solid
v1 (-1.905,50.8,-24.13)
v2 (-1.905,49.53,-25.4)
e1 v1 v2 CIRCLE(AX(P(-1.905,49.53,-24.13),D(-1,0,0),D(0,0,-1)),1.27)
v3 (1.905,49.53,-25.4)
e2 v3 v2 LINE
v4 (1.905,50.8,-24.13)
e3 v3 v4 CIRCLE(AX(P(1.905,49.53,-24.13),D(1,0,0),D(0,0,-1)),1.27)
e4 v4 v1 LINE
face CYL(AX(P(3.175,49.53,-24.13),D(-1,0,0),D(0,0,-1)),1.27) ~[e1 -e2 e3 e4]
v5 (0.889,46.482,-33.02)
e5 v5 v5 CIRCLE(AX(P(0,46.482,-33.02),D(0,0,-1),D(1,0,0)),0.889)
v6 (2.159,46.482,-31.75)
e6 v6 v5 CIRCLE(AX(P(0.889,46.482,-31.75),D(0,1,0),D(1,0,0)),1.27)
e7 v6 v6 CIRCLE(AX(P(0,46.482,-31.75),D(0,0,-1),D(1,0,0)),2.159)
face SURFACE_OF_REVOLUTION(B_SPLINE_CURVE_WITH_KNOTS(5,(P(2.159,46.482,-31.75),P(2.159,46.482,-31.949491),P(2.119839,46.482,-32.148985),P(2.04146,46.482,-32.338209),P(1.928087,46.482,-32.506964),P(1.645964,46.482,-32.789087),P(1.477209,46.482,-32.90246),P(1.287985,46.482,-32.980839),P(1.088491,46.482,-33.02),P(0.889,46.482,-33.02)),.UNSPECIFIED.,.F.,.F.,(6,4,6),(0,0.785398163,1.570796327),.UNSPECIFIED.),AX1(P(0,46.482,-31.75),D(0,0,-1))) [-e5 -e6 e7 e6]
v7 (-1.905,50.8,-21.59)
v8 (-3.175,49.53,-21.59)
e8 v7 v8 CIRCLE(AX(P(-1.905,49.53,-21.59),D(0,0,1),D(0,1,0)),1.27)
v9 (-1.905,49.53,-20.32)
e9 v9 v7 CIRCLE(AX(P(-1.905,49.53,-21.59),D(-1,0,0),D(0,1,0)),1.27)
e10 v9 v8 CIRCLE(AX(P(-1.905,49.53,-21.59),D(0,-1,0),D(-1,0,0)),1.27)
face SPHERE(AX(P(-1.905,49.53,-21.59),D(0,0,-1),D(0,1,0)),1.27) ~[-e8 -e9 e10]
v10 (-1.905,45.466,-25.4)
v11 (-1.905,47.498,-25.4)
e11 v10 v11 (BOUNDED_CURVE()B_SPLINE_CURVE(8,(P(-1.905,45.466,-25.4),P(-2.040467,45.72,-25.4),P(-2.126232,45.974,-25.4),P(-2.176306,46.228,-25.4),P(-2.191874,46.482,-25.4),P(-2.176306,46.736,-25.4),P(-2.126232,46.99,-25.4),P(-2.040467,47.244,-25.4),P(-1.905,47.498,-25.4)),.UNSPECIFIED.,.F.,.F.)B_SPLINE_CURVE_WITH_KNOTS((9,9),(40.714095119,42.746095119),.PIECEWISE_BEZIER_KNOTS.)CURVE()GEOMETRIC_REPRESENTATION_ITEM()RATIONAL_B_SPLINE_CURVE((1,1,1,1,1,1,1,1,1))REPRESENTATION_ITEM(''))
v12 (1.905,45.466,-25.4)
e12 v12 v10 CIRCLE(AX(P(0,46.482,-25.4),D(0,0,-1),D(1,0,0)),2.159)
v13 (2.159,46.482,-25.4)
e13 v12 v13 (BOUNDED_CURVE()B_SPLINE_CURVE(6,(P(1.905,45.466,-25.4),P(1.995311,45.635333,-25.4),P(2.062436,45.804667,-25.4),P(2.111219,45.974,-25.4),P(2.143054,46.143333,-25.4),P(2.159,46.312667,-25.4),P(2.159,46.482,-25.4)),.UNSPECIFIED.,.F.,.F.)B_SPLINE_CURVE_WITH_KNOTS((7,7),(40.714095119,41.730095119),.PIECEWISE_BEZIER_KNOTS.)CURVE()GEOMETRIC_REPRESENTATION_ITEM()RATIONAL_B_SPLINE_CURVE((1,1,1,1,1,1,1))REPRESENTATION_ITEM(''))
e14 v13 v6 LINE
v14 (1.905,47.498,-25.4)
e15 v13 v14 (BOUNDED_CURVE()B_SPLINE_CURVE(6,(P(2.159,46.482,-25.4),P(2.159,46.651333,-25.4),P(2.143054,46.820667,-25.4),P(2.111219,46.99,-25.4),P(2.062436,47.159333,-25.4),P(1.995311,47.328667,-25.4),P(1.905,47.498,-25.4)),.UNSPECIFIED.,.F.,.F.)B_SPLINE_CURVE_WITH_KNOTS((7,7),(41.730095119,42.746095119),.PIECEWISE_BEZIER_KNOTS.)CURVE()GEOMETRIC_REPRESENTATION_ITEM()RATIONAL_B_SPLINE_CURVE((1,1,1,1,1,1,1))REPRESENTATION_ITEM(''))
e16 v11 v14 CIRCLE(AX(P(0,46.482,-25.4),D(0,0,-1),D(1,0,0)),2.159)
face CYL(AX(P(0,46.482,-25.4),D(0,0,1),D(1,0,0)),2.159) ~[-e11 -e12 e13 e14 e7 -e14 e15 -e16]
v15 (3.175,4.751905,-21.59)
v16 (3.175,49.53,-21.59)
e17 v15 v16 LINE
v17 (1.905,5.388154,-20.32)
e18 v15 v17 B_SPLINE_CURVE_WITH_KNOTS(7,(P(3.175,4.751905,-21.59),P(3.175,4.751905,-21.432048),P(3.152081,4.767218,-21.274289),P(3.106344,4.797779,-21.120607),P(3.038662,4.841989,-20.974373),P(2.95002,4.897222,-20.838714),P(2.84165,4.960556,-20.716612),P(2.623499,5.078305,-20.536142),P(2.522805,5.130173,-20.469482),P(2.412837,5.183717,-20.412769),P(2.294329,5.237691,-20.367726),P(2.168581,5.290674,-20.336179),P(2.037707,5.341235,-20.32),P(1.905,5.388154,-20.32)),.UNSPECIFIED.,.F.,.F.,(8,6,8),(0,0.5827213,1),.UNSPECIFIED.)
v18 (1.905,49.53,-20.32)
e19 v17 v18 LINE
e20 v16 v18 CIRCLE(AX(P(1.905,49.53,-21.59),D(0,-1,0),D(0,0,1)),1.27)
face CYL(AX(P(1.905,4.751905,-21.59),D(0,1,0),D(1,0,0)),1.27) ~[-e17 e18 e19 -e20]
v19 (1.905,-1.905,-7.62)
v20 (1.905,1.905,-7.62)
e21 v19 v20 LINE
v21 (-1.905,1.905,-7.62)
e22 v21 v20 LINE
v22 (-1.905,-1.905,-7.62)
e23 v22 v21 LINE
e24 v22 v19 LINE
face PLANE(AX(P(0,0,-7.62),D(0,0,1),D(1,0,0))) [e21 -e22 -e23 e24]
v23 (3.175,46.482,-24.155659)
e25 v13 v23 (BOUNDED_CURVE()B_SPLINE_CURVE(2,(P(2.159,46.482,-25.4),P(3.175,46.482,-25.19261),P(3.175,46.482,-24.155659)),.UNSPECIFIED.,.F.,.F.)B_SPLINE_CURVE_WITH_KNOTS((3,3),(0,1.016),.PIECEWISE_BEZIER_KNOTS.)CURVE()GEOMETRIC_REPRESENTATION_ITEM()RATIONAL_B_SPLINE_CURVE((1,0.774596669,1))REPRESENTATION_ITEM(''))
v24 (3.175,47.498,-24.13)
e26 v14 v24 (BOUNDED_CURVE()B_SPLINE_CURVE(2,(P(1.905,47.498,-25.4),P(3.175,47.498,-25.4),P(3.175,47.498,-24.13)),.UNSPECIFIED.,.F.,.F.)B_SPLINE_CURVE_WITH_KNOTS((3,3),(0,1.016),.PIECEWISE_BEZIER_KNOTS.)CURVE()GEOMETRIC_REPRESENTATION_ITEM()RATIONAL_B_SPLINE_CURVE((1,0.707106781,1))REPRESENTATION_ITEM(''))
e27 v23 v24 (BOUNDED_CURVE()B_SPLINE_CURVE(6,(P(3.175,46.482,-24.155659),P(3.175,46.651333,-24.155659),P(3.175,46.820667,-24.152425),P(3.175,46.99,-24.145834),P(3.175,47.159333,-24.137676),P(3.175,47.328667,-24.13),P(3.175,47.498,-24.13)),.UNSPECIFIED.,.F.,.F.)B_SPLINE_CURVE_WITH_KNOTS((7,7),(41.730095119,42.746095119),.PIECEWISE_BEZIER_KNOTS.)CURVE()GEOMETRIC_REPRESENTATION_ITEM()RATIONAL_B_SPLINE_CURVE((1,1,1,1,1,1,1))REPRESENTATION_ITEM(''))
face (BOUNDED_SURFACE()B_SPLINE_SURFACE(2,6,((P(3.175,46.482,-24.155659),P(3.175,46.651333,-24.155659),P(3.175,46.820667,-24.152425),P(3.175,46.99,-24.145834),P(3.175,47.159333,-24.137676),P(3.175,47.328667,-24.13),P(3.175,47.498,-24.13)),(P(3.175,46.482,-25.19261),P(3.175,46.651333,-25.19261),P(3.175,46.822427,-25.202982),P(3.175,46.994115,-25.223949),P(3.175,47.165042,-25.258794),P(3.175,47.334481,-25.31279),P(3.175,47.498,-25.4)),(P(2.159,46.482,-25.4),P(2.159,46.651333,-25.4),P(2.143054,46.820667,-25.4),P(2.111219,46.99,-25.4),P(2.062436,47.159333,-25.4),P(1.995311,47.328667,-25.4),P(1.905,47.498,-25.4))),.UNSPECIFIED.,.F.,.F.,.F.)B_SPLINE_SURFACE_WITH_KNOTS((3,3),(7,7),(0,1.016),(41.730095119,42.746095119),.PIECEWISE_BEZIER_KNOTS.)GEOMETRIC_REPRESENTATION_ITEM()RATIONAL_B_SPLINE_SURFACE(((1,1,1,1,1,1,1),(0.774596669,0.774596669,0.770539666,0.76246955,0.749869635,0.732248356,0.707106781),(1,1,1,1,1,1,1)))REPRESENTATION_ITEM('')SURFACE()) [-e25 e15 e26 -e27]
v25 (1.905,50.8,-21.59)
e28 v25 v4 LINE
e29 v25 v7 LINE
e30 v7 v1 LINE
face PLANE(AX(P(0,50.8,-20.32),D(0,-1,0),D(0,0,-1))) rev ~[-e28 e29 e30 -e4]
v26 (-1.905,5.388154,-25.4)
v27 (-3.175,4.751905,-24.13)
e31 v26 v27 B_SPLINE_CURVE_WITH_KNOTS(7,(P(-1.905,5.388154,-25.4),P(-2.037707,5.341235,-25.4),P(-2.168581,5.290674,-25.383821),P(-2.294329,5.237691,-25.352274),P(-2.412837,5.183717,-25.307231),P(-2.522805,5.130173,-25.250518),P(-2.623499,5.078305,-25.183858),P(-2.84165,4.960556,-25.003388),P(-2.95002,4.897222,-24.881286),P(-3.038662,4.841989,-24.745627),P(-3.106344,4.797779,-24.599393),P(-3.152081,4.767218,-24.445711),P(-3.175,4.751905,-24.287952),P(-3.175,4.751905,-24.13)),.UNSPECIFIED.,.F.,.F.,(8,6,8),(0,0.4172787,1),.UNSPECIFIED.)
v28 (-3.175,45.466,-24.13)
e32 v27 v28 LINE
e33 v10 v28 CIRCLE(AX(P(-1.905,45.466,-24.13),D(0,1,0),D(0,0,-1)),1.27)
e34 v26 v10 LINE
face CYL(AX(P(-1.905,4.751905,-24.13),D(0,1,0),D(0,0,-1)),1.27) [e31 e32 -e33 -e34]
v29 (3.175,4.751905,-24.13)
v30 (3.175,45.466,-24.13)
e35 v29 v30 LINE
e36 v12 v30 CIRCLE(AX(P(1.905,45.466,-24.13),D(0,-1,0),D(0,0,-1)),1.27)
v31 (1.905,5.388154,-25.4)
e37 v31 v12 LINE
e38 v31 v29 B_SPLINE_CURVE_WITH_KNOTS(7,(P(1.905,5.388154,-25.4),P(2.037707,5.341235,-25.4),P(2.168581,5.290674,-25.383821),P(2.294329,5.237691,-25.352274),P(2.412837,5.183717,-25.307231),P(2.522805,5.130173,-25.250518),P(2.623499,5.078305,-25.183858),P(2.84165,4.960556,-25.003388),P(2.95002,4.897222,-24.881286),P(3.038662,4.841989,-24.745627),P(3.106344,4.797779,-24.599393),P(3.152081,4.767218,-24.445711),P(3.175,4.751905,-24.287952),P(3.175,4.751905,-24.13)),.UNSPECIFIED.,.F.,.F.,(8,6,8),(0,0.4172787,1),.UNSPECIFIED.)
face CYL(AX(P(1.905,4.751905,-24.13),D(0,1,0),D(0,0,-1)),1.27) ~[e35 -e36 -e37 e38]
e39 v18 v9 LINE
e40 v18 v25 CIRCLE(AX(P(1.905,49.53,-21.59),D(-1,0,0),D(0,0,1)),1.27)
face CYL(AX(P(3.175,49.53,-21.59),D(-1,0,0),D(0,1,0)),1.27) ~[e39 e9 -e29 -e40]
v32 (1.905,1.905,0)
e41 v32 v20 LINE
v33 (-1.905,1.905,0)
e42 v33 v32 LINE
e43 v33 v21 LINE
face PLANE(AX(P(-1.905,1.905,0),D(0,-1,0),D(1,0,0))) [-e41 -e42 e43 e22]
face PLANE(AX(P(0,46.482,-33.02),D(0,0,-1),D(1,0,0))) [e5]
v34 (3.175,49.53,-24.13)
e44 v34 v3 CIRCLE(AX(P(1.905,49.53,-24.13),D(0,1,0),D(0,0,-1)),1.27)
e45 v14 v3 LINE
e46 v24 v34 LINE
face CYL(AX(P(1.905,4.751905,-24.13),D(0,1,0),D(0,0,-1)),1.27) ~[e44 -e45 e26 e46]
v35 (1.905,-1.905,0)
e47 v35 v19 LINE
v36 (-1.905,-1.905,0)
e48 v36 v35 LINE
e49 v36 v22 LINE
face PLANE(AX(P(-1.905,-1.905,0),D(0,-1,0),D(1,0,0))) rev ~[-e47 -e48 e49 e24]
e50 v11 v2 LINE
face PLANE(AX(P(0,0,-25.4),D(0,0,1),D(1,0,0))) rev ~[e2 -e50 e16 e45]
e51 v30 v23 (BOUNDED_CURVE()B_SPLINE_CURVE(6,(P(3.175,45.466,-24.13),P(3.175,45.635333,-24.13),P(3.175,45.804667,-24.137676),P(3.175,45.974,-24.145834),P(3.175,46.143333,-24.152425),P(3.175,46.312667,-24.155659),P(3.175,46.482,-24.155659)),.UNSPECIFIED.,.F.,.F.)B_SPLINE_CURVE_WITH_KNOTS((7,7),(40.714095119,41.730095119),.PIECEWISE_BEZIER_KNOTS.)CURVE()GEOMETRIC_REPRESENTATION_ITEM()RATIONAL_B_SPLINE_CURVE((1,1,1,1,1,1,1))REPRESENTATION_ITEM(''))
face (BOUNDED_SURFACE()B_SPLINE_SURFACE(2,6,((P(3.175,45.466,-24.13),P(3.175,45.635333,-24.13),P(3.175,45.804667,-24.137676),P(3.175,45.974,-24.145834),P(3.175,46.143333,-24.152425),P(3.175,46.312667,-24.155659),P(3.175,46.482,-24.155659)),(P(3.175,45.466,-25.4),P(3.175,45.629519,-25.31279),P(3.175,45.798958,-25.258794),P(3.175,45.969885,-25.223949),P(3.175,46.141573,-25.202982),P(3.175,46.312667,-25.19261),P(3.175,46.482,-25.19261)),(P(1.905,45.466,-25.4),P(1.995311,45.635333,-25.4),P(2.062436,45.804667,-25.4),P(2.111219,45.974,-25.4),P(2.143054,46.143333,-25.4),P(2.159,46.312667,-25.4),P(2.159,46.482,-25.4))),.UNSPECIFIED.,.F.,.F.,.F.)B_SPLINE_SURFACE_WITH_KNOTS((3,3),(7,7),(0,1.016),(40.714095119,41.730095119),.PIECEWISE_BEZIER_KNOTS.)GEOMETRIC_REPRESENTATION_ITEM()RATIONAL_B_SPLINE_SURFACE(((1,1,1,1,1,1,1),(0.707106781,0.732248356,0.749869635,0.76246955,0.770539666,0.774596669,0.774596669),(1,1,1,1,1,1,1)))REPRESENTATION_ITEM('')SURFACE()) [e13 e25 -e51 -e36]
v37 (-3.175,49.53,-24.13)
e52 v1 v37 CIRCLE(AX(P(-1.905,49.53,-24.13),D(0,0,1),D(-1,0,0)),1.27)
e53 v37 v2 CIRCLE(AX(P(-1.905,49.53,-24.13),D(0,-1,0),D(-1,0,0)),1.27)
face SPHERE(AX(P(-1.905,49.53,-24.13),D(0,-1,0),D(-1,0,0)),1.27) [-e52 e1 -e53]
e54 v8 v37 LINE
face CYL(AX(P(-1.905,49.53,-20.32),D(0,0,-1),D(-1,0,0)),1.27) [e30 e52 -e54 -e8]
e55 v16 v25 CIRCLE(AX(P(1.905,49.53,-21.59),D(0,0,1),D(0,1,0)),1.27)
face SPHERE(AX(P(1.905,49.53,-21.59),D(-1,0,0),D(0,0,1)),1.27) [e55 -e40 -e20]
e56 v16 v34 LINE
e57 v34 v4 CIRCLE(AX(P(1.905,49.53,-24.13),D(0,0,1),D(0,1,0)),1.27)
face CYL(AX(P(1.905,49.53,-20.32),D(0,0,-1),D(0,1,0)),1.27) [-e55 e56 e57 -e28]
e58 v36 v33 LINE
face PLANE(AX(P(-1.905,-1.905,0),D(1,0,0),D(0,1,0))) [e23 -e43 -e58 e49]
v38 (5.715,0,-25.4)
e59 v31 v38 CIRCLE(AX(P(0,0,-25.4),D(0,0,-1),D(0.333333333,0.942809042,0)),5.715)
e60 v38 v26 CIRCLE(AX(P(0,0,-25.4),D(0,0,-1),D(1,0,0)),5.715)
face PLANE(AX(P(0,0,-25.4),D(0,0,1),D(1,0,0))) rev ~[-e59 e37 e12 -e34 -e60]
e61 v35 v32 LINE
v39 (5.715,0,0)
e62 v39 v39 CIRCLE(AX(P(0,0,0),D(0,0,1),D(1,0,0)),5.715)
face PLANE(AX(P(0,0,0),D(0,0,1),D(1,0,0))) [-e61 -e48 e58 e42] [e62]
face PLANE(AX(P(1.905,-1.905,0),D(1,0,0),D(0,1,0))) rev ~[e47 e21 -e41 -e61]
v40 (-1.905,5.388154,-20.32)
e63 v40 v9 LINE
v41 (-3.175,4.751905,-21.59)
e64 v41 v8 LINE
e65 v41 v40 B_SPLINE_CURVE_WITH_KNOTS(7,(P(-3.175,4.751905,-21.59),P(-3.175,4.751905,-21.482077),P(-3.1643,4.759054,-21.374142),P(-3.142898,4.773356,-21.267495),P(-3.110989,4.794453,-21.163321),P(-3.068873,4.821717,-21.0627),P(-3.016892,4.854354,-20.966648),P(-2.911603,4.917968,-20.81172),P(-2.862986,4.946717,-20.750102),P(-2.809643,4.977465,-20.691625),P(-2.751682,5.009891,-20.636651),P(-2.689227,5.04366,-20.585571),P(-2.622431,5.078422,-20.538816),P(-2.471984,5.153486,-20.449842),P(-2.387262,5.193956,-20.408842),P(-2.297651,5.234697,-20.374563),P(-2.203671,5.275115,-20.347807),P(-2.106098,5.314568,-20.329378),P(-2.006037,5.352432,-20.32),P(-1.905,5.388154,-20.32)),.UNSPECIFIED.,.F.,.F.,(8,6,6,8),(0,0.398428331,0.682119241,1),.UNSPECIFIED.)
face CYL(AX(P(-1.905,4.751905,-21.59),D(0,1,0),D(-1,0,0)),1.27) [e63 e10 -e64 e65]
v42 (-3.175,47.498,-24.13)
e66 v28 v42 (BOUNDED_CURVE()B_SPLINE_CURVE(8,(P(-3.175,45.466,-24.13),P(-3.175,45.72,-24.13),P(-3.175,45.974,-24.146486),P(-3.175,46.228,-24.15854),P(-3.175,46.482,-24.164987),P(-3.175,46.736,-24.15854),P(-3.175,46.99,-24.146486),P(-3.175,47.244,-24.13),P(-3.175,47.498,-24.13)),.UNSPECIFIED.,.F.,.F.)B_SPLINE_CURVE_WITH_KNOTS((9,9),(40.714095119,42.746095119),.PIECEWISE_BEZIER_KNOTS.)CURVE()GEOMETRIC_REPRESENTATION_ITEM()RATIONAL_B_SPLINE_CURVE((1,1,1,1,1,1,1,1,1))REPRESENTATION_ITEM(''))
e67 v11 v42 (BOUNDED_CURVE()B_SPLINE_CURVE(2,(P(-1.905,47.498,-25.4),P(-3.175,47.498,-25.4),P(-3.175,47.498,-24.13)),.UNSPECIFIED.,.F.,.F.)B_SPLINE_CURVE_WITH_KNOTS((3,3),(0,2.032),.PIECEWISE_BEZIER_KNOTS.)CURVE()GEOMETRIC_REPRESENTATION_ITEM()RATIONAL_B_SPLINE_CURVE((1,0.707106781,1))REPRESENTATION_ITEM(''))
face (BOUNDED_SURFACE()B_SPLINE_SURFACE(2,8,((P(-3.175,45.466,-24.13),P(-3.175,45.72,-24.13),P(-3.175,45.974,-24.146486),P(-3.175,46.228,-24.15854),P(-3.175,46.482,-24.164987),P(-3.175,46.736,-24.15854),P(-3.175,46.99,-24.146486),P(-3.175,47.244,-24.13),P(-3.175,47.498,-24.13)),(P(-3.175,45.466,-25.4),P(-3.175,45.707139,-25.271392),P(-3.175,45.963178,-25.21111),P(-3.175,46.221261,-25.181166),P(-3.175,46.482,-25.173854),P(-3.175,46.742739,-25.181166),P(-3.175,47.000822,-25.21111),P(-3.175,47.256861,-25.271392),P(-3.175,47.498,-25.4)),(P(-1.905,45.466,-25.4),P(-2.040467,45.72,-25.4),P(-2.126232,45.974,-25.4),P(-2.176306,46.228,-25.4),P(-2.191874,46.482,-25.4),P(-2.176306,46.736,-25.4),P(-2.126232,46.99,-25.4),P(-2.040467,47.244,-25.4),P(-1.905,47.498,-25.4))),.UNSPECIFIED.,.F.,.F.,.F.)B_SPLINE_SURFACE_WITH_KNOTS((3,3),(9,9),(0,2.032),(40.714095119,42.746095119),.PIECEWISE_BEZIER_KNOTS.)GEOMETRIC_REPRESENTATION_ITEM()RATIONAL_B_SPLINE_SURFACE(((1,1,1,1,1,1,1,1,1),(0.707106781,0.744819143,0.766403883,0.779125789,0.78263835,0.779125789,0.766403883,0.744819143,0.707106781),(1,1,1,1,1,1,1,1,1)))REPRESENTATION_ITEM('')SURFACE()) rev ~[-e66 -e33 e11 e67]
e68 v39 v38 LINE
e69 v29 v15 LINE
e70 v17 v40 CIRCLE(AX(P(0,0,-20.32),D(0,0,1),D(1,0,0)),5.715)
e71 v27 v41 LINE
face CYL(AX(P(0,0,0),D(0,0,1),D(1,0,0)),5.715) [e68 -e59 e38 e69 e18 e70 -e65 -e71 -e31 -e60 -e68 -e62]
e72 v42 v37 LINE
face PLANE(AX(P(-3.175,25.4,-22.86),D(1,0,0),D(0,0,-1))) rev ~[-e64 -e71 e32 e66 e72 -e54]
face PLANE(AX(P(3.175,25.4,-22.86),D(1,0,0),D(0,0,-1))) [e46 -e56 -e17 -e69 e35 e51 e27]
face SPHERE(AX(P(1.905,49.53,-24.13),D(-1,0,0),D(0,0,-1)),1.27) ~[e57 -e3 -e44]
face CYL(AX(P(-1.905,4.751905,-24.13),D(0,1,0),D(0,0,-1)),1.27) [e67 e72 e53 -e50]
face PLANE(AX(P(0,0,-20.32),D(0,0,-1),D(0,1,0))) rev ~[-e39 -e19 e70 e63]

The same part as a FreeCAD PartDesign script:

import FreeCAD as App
import Part
import Sketcher

V = App.Vector
Q = App.Units.Quantity


def edges_at(feature, points):
    """Names of the edges that pass closest to the given points."""
    edges = feature.Shape.Edges
    near = lambda p: min(range(len(edges)), key=lambda i: edges[i].distToShape(Part.Vertex(*p))[0])
    return sorted({f"Edge{near(p) + 1}" for p in points})


def add_polygon(sketch, points):
    """Adds a closed chain of lines whose ends are joined by coincident constraints."""
    first, n = sketch.GeometryCount, len(points)
    for a, b in zip(points, points[1:] + points[:1]):
        sketch.addGeometry(Part.LineSegment(App.Vector(*a, 0), App.Vector(*b, 0)), False)
    for i in range(n):
        sketch.addConstraint(Sketcher.Constraint("Coincident", first + i, 2, first + (i + 1) % n, 1))

doc = App.newDocument("Part")
body = doc.addObject("PartDesign::Body", "Body")

sketch1 = body.newObject("Sketcher::SketchObject", "Sketch")
sketch1.AttachmentSupport = (doc.getObject("XY_Plane"), [""])
sketch1.MapMode = "FlatFace"
sketch1.addGeometry(Part.Circle(V(0, 0, 0), V(0, 0, 1), 6), False)
sketch1.addConstraint([
    Sketcher.Constraint("Coincident", 0, 3, -1, 1),
    Sketcher.Constraint("Diameter", 0, Q("0.45 in")),
])
pad1 = body.newObject("PartDesign::Pad", "Pad")
pad1.Profile = sketch1
pad1.Length = Q("1 in")
pad1.Reversed = True

sketch2 = body.newObject("Sketcher::SketchObject", "Sketch001")
sketch2.AttachmentSupport = (doc.getObject("YZ_Plane"), [""])
sketch2.MapMode = "FlatFace"
add_polygon(sketch2, [(51, -20), (0, -20), (0, -25), (51, -25)])
sketch2.addConstraint([
    Sketcher.Constraint("Horizontal", 0),
    Sketcher.Constraint("Vertical", 1),
    Sketcher.Constraint("Horizontal", 2),
    Sketcher.Constraint("Vertical", 3),
    Sketcher.Constraint("PointOnObject", 0, 2, -2),
    Sketcher.Constraint("DistanceX", 0, 2, 0, 1, Q("2 in")),
    Sketcher.Constraint("DistanceY", 1, 2, 1, 1, Q("0.2 in")),
    Sketcher.Constraint("DistanceY", 1, 2, -1, 1, Q("1 in")),
])
pad2 = body.newObject("PartDesign::Pad", "Pad001")
pad2.Profile = sketch2
pad2.Length = Q("0.25 in")
pad2.Midplane = True

sketch3 = body.newObject("Sketcher::SketchObject", "Sketch002")
sketch3.AttachmentSupport = (doc.getObject("XY_Plane"), [""])
sketch3.MapMode = "FlatFace"
sketch3.AttachmentOffset = App.Placement(V(0, 0, -1 * 25.4), App.Rotation())
sketch3.addGeometry(Part.Circle(V(0, 46.5, 0), V(0, 0, 1), 2.2), False)
sketch3.addConstraint([
    Sketcher.Constraint("PointOnObject", 0, 3, -2),
    Sketcher.Constraint("Diameter", 0, Q("0.17 in")),
    Sketcher.Constraint("DistanceY", -1, 1, 0, 3, Q("1.83 in")),
])
pad3 = body.newObject("PartDesign::Pad", "Pad002")
pad3.Profile = sketch3
pad3.Length = Q("0.3 in")
pad3.Reversed = True
doc.recompute()

fillet = body.newObject("PartDesign::Fillet", "Fillet")
fillet.Base = (pad3, edges_at(pad3, [
    (-3.175, 27.776, -25.4),
    (-3.175, 50.8, -22.86),
    (0, 50.8, -25.4),
    (0, 50.8, -20.32),
    (-3.175, 27.776, -20.32),
    (3.175, 27.776, -20.32),
    (3.175, 27.776, -25.4),
    (3.175, 50.8, -22.86),
    (-2.159, 46.482, -33.02),
]))
fillet.Radius = Q("0.05 in")

sketch4 = body.newObject("Sketcher::SketchObject", "Sketch003")
sketch4.AttachmentSupport = (doc.getObject("XY_Plane"), [""])
sketch4.MapMode = "FlatFace"
add_polygon(sketch4, [(-1.9, 1.9), (-1.9, -1.9), (1.9, -1.9), (1.9, 1.9)])
sketch4.addConstraint([
    Sketcher.Constraint("Vertical", 0),
    Sketcher.Constraint("Horizontal", 1),
    Sketcher.Constraint("Vertical", 2),
    Sketcher.Constraint("Horizontal", 3),
    Sketcher.Constraint("Symmetric", 0, 2, 2, 2, -1, 1),
    Sketcher.Constraint("Equal", 3, 0),
    Sketcher.Constraint("DistanceX", 1, 1, 1, 2, Q("0.15 in")),
])
pocket1 = body.newObject("PartDesign::Pocket", "Pocket")
pocket1.Profile = sketch4
pocket1.Length = Q("0.3 in")

doc.recompute()
